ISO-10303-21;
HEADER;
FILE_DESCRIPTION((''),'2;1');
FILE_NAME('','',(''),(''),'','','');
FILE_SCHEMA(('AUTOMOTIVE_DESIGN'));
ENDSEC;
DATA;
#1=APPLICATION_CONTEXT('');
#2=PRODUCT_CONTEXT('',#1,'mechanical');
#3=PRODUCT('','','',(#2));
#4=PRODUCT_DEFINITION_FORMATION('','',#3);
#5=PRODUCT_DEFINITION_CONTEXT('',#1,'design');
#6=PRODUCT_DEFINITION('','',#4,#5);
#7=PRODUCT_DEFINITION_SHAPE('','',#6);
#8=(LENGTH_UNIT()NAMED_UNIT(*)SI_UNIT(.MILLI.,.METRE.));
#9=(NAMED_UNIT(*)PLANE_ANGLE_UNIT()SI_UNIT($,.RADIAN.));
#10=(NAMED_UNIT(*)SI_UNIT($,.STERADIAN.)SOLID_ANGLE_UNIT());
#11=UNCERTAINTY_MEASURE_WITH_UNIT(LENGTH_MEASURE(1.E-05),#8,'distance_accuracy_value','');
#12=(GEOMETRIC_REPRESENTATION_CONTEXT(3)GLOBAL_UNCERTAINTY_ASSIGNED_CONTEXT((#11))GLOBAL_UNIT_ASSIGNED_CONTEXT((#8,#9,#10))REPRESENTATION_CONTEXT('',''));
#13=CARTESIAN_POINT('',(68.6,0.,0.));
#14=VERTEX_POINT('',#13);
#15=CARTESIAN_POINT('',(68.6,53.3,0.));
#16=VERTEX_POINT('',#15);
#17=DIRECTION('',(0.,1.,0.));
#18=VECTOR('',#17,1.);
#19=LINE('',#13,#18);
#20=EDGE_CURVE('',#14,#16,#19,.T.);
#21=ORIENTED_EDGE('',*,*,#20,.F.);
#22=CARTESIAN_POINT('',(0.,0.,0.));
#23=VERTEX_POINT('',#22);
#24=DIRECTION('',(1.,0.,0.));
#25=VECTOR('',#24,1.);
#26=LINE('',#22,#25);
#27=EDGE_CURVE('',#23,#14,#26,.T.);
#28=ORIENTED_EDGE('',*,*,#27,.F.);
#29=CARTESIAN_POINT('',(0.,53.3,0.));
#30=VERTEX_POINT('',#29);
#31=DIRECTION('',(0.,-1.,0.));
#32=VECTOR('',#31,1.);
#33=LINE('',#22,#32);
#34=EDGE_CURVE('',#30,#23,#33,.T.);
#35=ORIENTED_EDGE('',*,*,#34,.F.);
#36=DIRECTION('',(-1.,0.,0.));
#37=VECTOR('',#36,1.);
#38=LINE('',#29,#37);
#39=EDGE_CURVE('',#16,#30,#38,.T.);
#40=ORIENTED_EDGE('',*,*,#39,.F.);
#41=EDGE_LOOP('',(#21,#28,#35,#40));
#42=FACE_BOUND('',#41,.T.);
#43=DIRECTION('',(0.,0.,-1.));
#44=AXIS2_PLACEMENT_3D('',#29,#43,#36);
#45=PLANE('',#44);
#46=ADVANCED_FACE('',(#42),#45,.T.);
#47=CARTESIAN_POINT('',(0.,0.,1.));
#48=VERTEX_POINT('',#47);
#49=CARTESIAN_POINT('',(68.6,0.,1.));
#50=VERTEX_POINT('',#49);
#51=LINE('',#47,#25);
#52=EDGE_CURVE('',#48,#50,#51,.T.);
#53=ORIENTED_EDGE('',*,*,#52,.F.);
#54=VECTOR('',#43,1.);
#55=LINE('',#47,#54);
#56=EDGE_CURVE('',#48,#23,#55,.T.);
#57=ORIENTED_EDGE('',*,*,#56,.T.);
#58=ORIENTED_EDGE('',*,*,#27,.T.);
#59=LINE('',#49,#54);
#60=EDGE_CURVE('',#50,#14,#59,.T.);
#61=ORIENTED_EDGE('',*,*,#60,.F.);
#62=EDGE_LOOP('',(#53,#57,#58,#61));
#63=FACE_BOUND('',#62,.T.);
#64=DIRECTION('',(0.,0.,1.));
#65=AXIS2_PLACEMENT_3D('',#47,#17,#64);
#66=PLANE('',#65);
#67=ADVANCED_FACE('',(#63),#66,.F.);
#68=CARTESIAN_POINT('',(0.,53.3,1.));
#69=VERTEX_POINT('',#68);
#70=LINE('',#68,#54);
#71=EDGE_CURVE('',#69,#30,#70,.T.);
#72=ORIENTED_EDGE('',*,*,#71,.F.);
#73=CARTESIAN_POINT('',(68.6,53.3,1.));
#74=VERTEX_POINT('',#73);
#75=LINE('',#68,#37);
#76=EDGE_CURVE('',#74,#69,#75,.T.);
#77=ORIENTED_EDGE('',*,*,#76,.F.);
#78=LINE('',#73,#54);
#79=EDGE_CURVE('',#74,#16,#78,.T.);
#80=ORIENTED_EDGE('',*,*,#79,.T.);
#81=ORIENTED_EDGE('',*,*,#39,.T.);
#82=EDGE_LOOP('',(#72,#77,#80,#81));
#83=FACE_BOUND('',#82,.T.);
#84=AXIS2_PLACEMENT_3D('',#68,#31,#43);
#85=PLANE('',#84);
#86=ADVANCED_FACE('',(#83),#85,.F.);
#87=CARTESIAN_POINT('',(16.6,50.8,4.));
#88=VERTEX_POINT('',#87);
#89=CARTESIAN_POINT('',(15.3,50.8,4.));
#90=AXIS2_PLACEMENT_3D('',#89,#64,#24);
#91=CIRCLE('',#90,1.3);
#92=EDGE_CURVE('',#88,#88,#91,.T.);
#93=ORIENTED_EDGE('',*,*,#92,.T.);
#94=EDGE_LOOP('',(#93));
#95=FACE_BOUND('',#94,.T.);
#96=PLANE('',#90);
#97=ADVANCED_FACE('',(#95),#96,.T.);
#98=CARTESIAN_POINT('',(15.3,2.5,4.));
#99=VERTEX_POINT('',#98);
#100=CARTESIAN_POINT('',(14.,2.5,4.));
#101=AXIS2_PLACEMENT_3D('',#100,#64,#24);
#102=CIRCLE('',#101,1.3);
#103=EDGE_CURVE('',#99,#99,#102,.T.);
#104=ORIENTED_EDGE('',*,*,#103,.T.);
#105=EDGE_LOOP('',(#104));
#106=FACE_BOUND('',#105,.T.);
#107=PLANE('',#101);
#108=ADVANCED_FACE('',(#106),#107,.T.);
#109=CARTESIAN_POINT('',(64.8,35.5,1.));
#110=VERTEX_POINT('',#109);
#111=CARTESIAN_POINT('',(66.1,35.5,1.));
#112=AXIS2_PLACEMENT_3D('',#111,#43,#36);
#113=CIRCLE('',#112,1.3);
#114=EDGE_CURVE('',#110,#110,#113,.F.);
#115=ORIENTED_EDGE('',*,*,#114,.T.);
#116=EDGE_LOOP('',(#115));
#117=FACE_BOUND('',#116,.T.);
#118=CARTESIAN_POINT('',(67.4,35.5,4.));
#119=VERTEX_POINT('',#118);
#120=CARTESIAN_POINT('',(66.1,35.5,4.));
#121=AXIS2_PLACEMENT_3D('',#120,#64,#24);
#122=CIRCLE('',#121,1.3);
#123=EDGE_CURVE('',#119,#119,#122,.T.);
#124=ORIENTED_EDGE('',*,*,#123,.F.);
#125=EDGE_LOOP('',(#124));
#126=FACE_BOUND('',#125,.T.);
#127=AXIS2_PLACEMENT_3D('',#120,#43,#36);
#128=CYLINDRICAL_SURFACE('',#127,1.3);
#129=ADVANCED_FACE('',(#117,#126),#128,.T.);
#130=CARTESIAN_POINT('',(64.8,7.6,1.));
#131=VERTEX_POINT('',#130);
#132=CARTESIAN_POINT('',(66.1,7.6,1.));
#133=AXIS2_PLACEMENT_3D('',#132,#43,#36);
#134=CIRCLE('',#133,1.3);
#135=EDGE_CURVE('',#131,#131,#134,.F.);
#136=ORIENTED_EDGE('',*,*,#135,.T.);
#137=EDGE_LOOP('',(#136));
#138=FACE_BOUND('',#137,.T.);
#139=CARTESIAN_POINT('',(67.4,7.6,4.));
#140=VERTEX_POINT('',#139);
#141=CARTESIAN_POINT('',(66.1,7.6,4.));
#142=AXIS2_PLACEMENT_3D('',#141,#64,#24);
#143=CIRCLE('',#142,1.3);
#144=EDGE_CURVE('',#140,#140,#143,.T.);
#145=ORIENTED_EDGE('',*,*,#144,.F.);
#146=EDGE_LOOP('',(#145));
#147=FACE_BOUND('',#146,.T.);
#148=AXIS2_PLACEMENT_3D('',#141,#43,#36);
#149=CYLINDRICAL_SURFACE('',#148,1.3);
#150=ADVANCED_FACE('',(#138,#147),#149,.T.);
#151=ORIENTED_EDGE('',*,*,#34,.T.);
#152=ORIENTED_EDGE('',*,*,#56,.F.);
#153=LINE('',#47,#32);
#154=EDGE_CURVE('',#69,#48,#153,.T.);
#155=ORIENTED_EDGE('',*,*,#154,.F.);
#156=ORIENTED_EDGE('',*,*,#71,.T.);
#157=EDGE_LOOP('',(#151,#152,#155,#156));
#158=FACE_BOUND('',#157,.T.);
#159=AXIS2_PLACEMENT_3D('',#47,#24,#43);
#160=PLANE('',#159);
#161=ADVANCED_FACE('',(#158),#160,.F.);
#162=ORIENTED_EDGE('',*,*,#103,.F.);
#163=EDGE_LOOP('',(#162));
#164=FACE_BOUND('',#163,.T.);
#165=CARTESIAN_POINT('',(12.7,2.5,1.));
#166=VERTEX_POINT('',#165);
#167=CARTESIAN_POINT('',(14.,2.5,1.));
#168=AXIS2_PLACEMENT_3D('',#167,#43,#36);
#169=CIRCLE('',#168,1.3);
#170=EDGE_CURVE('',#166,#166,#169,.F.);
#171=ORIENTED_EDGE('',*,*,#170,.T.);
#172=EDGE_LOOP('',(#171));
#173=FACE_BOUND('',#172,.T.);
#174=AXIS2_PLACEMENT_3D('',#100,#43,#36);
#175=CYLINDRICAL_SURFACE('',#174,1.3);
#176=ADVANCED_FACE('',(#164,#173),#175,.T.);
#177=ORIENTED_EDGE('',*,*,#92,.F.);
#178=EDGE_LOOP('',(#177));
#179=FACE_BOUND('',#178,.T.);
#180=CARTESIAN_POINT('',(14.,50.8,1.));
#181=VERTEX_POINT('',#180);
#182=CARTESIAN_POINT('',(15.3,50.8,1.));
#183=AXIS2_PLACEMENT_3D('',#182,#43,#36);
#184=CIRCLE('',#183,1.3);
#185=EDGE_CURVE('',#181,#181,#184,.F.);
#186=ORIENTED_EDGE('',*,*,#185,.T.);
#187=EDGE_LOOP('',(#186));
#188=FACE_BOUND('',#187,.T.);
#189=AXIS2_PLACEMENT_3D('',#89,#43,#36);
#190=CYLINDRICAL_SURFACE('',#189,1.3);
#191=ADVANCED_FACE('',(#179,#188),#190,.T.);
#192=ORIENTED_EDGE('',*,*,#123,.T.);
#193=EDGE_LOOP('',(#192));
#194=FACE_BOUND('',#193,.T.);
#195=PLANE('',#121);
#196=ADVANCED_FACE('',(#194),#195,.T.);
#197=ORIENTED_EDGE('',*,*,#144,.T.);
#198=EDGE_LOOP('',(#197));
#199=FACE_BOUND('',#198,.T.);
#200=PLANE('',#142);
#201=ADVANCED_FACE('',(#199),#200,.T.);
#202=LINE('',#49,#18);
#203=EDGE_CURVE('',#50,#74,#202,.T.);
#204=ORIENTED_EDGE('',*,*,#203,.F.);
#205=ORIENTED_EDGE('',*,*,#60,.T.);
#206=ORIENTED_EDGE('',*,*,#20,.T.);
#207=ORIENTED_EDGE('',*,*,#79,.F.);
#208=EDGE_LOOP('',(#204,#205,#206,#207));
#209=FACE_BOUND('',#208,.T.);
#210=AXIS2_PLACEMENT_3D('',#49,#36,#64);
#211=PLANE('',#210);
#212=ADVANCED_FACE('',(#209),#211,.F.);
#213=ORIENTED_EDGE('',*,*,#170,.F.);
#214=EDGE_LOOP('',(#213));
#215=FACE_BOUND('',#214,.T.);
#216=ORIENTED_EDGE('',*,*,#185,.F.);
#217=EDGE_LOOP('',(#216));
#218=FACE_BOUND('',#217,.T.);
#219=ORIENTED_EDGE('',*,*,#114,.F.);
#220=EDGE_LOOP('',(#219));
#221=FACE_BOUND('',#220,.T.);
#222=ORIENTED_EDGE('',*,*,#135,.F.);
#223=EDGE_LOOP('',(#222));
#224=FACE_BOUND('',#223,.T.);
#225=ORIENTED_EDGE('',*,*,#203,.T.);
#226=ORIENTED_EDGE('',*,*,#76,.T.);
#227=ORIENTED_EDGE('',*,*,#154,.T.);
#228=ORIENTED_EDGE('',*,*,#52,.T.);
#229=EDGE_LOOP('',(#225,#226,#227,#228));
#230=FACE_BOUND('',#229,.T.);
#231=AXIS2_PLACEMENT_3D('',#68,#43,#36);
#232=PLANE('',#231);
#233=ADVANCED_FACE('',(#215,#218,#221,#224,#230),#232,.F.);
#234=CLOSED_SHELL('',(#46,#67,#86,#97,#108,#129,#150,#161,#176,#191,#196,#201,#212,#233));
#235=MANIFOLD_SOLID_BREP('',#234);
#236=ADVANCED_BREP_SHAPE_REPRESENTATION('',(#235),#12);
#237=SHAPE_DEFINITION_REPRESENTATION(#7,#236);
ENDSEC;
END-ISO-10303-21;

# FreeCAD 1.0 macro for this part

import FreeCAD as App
import Part
import Sketcher


def add_polygon(sketch, points):
    """Adds a closed chain of lines whose ends are joined by coincident constraints."""
    first, n = sketch.GeometryCount, len(points)
    for a, b in zip(points, points[1:] + points[:1]):
        sketch.addGeometry(Part.LineSegment(App.Vector(*a, 0), App.Vector(*b, 0)), False)
    for i in range(n):
        sketch.addConstraint(Sketcher.Constraint("Coincident", first + i, 2, first + (i + 1) % n, 1))

doc = App.newDocument("Part")
body = doc.addObject("PartDesign::Body", "Body")

sketch1 = body.newObject("Sketcher::SketchObject", "Sketch")
sketch1.AttachmentSupport = (doc.getObject("XY_Plane"), [""])
sketch1.MapMode = "FlatFace"
add_polygon(sketch1, [(0, 53), (0, 0), (69, 0), (69, 53)])
sketch1.addConstraint([
    Sketcher.Constraint("Vertical", 0),
    Sketcher.Constraint("Horizontal", 1),
    Sketcher.Constraint("Vertical", 2),
    Sketcher.Constraint("Horizontal", 3),
    Sketcher.Constraint("Coincident", 0, 2, -1, 1),
    Sketcher.Constraint("DistanceX", 1, 1, 1, 2, 68.6),
    Sketcher.Constraint("DistanceY", 0, 2, 0, 1, 53.3),
])
pad1 = body.newObject("PartDesign::Pad", "Pad")
pad1.Profile = sketch1
pad1.Length = 1

sketch2 = body.newObject("Sketcher::SketchObject", "Sketch001")
sketch2.AttachmentSupport = (doc.getObject("XY_Plane"), [""])
sketch2.MapMode = "FlatFace"
sketch2.AttachmentOffset = App.Placement(App.Vector(0, 0, 1), App.Rotation())
sketch2.addGeometry([
    Part.Circle(App.Vector(14, 2.5, 0), App.Vector(0, 0, 1), 1.3),
    Part.Circle(App.Vector(15.3, 50.8, 0), App.Vector(0, 0, 1), 1.3),
    Part.Circle(App.Vector(66.1, 7.6, 0), App.Vector(0, 0, 1), 1.3),
    Part.Circle(App.Vector(66.1, 35.5, 0), App.Vector(0, 0, 1), 1.3),
], False)
sketch2.addConstraint([
    Sketcher.Constraint("Equal", 0, 1),
    Sketcher.Constraint("Equal", 1, 2),
    Sketcher.Constraint("Equal", 2, 3),
    Sketcher.Constraint("Vertical", 2, 3, 3, 3),
    Sketcher.Constraint("Diameter", 0, 2.6),
    Sketcher.Constraint("DistanceX", -1, 1, 0, 3, 14.0),
    Sketcher.Constraint("DistanceY", 0, 3, 3, 3, 33.0),
    Sketcher.Constraint("DistanceY", -1, 1, 0, 3, 2.5),
    Sketcher.Constraint("DistanceX", -1, 1, 1, 3, 15.3),
    Sketcher.Constraint("DistanceY", -1, 1, 1, 3, 50.8),
    Sketcher.Constraint("DistanceX", -1, 1, 2, 3, 66.1),
    Sketcher.Constraint("DistanceY", -1, 1, 2, 3, 7.6),
])
pad2 = body.newObject("PartDesign::Pad", "Pad001")
pad2.Profile = sketch2
pad2.Length = 3

doc.recompute()
